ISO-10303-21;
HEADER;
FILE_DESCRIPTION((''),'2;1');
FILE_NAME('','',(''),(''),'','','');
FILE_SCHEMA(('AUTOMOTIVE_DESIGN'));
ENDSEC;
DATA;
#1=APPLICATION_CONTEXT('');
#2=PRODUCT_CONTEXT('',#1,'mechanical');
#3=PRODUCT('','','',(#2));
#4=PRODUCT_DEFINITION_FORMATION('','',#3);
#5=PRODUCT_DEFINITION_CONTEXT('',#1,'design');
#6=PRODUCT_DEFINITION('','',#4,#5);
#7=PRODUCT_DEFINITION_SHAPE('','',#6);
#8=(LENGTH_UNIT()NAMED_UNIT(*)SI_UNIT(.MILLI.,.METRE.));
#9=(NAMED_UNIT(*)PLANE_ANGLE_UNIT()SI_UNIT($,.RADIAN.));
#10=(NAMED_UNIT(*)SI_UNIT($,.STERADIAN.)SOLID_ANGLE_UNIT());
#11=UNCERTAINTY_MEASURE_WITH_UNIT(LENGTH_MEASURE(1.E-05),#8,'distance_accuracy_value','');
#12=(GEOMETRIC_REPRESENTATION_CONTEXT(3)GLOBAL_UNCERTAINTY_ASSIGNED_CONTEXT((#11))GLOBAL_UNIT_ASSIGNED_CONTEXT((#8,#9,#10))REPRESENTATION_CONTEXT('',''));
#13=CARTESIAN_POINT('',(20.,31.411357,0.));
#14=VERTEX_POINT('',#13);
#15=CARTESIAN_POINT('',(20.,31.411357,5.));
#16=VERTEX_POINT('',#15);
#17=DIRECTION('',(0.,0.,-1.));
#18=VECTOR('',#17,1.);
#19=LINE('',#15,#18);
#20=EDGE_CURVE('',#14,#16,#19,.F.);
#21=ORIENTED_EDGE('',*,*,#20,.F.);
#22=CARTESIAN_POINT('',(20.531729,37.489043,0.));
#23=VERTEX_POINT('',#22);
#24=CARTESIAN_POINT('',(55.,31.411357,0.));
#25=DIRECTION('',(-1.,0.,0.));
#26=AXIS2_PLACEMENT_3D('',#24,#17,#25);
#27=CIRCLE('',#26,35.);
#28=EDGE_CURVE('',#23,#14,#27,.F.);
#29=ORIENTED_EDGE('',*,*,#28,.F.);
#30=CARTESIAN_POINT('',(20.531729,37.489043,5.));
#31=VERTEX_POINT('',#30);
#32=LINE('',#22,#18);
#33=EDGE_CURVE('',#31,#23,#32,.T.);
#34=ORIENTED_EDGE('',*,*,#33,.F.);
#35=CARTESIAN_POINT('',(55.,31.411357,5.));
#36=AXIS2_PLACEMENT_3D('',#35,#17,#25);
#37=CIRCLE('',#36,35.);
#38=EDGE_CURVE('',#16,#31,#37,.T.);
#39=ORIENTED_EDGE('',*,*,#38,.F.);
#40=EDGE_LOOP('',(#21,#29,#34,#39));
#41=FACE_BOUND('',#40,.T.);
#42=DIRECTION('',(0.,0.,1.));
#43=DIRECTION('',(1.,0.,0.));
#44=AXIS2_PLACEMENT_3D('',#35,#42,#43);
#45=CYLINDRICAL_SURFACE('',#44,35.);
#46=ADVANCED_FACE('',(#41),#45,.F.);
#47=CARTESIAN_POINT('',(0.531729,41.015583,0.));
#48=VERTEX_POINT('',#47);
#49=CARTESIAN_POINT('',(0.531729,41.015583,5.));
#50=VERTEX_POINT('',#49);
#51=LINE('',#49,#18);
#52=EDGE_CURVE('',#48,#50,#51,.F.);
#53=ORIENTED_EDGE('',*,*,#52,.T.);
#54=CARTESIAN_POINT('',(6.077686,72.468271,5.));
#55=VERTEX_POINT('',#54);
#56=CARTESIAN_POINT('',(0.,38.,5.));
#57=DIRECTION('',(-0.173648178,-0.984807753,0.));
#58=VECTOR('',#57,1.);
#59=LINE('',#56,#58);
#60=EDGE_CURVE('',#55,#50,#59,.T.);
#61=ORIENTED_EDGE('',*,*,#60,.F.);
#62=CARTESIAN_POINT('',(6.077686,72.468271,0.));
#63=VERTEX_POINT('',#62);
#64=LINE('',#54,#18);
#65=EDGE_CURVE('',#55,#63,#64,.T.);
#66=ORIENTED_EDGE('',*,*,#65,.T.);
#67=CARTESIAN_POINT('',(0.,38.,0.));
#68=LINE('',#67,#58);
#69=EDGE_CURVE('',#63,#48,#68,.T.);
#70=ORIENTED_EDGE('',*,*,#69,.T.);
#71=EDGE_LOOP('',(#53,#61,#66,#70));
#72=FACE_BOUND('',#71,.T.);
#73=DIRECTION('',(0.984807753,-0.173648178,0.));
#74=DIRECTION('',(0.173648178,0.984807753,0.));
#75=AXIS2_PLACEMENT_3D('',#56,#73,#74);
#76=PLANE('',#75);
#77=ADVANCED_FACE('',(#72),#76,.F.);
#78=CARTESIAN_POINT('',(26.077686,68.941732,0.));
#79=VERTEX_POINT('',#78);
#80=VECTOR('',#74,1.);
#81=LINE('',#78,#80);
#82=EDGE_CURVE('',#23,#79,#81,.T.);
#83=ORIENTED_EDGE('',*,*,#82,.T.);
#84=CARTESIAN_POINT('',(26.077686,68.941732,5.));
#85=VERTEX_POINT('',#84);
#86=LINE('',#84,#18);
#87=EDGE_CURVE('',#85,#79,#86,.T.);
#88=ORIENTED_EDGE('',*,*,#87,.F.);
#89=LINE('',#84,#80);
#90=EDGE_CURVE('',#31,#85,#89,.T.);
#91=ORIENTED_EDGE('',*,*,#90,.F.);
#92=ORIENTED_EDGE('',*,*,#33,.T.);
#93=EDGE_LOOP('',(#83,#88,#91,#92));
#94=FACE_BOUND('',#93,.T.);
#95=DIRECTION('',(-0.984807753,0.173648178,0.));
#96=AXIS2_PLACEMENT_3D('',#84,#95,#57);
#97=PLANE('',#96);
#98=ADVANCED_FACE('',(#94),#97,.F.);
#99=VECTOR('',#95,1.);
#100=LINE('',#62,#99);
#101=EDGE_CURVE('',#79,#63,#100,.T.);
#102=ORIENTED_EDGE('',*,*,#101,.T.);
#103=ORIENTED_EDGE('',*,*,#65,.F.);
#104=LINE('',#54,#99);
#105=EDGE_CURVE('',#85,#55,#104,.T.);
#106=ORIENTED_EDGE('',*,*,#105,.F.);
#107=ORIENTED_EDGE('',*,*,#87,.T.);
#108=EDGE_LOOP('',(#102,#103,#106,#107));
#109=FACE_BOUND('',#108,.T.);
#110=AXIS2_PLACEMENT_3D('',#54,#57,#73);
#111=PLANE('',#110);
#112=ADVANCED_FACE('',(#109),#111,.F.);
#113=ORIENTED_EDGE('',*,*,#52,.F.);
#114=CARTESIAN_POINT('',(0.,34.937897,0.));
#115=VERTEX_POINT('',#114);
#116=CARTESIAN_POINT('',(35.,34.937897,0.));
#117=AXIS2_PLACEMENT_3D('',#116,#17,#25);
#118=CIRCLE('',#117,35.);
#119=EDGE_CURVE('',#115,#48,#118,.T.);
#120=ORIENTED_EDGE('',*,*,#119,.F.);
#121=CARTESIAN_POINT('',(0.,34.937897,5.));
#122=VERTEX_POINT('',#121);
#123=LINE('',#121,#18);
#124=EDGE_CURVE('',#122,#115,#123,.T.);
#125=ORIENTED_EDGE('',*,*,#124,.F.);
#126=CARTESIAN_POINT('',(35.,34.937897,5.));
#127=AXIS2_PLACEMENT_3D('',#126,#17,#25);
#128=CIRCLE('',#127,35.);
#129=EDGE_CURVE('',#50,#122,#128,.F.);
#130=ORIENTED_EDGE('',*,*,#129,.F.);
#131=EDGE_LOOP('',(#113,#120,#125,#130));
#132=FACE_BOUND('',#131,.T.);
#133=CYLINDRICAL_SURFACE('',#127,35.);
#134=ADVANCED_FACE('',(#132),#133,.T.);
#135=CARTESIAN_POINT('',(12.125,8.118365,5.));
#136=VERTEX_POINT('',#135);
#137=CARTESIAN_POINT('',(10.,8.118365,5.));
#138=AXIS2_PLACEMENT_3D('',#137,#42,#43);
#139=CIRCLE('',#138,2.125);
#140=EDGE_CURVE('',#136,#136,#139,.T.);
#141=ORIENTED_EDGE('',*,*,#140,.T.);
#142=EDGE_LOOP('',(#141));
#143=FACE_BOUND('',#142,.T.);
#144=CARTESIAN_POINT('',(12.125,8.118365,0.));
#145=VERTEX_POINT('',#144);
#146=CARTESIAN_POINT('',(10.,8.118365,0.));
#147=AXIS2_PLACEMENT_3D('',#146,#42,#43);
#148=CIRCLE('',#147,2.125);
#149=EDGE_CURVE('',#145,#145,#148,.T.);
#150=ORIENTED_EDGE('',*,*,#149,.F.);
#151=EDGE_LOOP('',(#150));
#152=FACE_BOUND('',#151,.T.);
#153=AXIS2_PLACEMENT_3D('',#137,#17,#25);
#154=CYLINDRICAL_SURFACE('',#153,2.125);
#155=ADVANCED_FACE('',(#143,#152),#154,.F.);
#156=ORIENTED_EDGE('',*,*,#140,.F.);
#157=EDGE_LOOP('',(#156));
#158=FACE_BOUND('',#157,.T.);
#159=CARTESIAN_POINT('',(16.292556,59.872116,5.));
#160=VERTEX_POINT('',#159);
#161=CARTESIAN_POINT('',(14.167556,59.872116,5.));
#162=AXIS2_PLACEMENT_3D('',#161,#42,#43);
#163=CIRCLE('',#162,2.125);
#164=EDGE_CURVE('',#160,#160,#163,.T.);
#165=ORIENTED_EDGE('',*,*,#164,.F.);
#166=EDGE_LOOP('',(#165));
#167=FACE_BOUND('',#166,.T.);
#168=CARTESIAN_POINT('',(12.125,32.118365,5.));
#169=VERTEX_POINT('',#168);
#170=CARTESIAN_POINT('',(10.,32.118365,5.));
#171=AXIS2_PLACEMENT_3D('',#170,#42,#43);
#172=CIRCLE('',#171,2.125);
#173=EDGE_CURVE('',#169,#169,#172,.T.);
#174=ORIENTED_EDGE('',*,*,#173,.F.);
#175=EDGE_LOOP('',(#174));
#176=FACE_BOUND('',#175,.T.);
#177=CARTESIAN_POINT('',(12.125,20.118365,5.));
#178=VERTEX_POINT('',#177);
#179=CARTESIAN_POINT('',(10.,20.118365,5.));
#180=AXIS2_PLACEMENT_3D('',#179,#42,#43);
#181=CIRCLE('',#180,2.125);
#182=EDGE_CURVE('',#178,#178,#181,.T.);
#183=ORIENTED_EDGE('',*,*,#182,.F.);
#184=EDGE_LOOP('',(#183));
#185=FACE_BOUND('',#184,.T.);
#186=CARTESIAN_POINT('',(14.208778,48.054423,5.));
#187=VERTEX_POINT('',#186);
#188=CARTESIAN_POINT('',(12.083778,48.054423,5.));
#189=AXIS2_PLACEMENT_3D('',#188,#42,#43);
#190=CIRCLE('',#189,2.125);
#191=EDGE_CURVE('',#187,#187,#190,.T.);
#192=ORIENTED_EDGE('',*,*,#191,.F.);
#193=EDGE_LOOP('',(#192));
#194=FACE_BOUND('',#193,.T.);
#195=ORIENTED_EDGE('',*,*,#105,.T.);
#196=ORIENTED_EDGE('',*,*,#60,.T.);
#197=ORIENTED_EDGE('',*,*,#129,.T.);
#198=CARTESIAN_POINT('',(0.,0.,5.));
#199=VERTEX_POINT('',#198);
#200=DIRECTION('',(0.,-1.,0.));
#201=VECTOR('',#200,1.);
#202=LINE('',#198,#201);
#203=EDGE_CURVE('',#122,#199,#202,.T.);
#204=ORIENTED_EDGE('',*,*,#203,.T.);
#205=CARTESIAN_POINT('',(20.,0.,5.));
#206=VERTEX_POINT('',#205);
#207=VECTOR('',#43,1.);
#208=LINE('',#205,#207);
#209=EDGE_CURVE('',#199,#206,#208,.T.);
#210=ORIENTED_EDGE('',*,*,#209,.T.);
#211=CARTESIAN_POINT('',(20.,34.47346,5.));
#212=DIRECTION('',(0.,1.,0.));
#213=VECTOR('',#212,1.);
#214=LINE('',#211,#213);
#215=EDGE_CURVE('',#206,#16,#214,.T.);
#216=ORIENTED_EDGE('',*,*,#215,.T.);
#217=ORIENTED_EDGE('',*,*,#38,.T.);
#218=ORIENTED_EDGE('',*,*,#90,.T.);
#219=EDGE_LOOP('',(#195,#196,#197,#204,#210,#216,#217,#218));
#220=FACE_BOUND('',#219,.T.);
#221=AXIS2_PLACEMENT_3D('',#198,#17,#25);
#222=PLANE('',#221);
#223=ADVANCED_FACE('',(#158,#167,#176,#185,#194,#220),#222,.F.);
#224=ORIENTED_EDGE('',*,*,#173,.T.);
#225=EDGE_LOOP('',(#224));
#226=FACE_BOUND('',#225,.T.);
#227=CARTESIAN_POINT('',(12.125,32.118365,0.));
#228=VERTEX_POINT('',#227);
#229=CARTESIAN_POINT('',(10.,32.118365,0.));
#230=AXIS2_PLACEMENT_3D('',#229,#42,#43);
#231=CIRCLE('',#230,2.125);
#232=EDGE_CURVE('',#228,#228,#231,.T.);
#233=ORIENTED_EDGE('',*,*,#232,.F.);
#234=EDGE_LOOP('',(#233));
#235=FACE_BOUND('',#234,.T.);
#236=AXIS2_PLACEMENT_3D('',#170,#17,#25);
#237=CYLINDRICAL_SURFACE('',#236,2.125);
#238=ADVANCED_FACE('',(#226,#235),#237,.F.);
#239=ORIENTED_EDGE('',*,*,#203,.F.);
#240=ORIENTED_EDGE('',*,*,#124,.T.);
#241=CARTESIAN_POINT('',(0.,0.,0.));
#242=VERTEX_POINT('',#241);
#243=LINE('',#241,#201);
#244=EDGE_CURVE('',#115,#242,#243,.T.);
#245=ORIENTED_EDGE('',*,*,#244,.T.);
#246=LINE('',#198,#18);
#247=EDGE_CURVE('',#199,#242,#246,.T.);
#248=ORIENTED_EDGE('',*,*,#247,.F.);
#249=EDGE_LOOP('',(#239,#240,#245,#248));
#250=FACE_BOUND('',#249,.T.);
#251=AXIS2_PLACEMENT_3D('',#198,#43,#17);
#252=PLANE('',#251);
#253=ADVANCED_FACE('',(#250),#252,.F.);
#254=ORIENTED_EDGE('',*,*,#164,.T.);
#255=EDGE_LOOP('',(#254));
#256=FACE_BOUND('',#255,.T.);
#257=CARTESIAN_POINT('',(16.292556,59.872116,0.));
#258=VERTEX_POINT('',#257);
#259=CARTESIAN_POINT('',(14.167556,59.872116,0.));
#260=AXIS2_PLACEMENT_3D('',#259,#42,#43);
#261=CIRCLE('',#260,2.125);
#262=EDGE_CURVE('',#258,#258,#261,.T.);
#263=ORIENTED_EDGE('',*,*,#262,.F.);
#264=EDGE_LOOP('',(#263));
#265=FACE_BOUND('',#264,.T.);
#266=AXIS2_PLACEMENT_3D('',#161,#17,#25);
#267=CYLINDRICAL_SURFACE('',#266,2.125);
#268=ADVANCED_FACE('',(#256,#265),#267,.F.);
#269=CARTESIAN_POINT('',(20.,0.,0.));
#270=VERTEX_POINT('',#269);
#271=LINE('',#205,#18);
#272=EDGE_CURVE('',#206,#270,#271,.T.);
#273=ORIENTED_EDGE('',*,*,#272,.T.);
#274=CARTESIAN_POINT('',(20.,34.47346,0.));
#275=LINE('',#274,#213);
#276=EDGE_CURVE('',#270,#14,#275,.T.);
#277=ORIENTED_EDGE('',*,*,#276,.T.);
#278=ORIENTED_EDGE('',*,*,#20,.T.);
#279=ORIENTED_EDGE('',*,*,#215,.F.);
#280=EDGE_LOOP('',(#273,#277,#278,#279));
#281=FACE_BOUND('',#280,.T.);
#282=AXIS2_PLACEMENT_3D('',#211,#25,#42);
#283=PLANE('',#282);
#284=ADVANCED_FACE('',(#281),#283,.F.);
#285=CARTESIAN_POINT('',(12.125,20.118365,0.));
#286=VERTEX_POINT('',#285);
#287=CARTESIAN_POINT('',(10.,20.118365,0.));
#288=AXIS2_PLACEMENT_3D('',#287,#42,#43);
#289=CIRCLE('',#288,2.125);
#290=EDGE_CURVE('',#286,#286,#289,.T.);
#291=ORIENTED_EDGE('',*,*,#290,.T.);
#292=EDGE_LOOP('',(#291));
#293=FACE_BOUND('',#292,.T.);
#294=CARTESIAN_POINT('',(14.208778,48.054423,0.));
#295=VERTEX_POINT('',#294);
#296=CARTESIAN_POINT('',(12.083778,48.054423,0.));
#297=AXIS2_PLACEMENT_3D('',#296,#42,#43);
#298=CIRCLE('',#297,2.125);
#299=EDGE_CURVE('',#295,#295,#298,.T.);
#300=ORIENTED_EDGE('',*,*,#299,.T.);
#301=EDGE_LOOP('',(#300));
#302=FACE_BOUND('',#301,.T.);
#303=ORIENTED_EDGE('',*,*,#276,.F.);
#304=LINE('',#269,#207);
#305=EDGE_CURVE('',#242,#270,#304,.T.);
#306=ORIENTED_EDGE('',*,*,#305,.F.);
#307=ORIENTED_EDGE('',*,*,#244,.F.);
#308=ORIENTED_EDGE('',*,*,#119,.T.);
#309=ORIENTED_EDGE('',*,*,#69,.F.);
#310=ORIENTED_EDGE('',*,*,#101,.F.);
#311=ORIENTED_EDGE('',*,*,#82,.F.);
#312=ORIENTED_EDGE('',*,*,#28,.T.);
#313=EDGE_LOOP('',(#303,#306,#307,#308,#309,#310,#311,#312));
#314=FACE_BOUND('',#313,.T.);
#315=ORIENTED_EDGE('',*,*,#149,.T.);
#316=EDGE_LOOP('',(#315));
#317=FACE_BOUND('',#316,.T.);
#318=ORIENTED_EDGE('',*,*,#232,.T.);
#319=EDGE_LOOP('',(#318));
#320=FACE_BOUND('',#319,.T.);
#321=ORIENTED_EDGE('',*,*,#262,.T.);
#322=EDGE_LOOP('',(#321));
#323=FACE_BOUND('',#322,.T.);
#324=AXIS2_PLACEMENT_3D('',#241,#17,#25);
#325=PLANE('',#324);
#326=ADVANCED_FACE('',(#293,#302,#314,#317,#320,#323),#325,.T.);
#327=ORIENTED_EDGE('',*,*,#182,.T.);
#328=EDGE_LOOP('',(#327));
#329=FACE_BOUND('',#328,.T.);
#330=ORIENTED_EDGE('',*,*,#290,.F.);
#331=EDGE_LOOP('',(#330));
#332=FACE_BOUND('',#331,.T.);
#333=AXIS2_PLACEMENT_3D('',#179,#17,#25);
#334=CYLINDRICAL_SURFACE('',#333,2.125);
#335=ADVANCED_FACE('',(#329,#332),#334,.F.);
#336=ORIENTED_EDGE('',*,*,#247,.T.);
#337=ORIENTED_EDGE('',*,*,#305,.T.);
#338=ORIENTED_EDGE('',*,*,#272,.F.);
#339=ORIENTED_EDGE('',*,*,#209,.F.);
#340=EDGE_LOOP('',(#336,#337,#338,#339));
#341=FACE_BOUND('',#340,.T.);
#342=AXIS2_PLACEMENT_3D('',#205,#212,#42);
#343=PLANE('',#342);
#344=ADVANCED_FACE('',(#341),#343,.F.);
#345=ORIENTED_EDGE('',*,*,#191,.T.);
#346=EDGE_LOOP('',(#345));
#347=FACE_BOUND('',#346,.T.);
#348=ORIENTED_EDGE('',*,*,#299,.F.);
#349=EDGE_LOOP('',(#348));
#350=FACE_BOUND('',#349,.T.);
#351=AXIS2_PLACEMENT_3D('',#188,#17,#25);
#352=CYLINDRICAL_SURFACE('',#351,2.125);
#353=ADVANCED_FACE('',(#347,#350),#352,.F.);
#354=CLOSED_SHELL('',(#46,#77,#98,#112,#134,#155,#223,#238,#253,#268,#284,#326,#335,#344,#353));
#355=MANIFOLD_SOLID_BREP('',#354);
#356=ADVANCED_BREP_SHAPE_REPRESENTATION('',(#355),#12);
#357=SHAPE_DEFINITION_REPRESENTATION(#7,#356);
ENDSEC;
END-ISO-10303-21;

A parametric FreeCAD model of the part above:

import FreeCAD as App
import Part
import Sketcher

V = App.Vector
Q = App.Units.Quantity


def edges_at(feature, points):
    """Names of the edges that pass closest to the given points."""
    edges = feature.Shape.Edges
    near = lambda p: min(range(len(edges)), key=lambda i: edges[i].distToShape(Part.Vertex(*p))[0])
    return sorted({f"Edge{near(p) + 1}" for p in points})


def add_polygon(sketch, points):
    """Adds a closed chain of lines whose ends are joined by coincident constraints."""
    first, n = sketch.GeometryCount, len(points)
    for a, b in zip(points, points[1:] + points[:1]):
        sketch.addGeometry(Part.LineSegment(App.Vector(*a, 0), App.Vector(*b, 0)), False)
    for i in range(n):
        sketch.addConstraint(Sketcher.Constraint("Coincident", first + i, 2, first + (i + 1) % n, 1))

doc = App.newDocument("Part")
body = doc.addObject("PartDesign::Body", "Body")

# Sketch on XY plane
sketch1 = doc.addObject("Sketcher::SketchObject", "Sketch")
body.addObject(sketch1)
sketch1.AttachmentSupport = (doc.XY_Plane, [""])
sketch1.MapMode = "FlatFace"
add_polygon(sketch1, [(0, 38), (0, 0), (20, 0), (20, 34.5), (26.1, 68.9), (6.1, 72.5)])  # lines 0-5
sketch1.addGeometry(Part.Circle(V(10, 8.1, 0), V(0, 0, 1), 2.1), False)  # 6
sketch1.addGeometry(Part.Circle(V(10, 20.1, 0), V(0, 0, 1), 2.1), False)  # 7
sketch1.addGeometry(Part.Circle(V(10, 32.1, 0), V(0, 0, 1), 2.1), False)  # 8
sketch1.addGeometry(Part.Circle(V(12.1, 48.1, 0), V(0, 0, 1), 2.1), False)  # 9
sketch1.addGeometry(Part.Circle(V(14.2, 59.9, 0), V(0, 0, 1), 2.1), False)  # 10
sketch1.addConstraint(Sketcher.Constraint("Vertical", 0))
sketch1.addConstraint(Sketcher.Constraint("Horizontal", 1))
sketch1.addConstraint(Sketcher.Constraint("Vertical", 2))
sketch1.addConstraint(Sketcher.Constraint("Coincident", 0, 2, -1, 1))
sketch1.addConstraint(Sketcher.Constraint("Equal", 6, 7))
sketch1.addConstraint(Sketcher.Constraint("Equal", 7, 8))
sketch1.addConstraint(Sketcher.Constraint("Equal", 8, 9))
sketch1.addConstraint(Sketcher.Constraint("Equal", 9, 10))
sketch1.addConstraint(Sketcher.Constraint("Perpendicular", 3, 4))
sketch1.addConstraint(Sketcher.Constraint("Perpendicular", 4, 5))
sketch1.addConstraint(Sketcher.Constraint("Vertical", 6, 3, 7, 3))
sketch1.addConstraint(Sketcher.Constraint("Vertical", 7, 3, 8, 3))
sketch1.addConstraint(Sketcher.Constraint("Equal", 3, 5))
sketch1.addConstraint(Sketcher.Constraint("Diameter", 6, Q("4.25 mm")))
sketch1.addConstraint(Sketcher.Constraint("DistanceX", 1, 1, 1, 2, Q("20 mm")))
sketch1.addConstraint(Sketcher.Constraint("DistanceY", 0, 2, 0, 1, Q("38 mm")))
sketch1.addConstraint(Sketcher.Constraint("Angle", 3, Q("80 deg")))
sketch1.addConstraint(Sketcher.Constraint("Distance", 3, Q("35 mm")))
sketch1.addConstraint(Sketcher.Constraint("DistanceX", -1, 1, 6, 3, Q("10 mm")))
sketch1.addConstraint(Sketcher.Constraint("DistanceY", 6, 3, 7, 3, Q("12 mm")))
sketch1.addConstraint(Sketcher.Constraint("DistanceY", 7, 3, 8, 3, Q("12 mm")))
sketch1.addConstraint(Sketcher.Constraint("DistanceX", -1, 1, 9, 3, Q("12.083778 mm")))
sketch1.addConstraint(Sketcher.Constraint("DistanceY", 8, 3, 9, 3, Q("15.936058 mm")))
sketch1.addConstraint(Sketcher.Constraint("DistanceX", 9, 3, 10, 3, Q("2.083778 mm")))
sketch1.addConstraint(Sketcher.Constraint("DistanceY", 8, 3, 10, 3, Q("27.753751 mm")))
sketch1.addConstraint(Sketcher.Constraint("DistanceY", 9, 3, 3, 2, Q("20.887309 mm")))
pad1 = doc.addObject("PartDesign::Pad", "Pad")
body.addObject(pad1)
pad1.Profile = sketch1
pad1.Length = 5
doc.recompute()

fillet = doc.addObject("PartDesign::Fillet", "Fillet")
body.addObject(fillet)
fillet.Base = (pad1, edges_at(pad1, [(0, 38, 2.5), (20, 34.473, 2.5)]))
fillet.Radius = 35

doc.recompute()
